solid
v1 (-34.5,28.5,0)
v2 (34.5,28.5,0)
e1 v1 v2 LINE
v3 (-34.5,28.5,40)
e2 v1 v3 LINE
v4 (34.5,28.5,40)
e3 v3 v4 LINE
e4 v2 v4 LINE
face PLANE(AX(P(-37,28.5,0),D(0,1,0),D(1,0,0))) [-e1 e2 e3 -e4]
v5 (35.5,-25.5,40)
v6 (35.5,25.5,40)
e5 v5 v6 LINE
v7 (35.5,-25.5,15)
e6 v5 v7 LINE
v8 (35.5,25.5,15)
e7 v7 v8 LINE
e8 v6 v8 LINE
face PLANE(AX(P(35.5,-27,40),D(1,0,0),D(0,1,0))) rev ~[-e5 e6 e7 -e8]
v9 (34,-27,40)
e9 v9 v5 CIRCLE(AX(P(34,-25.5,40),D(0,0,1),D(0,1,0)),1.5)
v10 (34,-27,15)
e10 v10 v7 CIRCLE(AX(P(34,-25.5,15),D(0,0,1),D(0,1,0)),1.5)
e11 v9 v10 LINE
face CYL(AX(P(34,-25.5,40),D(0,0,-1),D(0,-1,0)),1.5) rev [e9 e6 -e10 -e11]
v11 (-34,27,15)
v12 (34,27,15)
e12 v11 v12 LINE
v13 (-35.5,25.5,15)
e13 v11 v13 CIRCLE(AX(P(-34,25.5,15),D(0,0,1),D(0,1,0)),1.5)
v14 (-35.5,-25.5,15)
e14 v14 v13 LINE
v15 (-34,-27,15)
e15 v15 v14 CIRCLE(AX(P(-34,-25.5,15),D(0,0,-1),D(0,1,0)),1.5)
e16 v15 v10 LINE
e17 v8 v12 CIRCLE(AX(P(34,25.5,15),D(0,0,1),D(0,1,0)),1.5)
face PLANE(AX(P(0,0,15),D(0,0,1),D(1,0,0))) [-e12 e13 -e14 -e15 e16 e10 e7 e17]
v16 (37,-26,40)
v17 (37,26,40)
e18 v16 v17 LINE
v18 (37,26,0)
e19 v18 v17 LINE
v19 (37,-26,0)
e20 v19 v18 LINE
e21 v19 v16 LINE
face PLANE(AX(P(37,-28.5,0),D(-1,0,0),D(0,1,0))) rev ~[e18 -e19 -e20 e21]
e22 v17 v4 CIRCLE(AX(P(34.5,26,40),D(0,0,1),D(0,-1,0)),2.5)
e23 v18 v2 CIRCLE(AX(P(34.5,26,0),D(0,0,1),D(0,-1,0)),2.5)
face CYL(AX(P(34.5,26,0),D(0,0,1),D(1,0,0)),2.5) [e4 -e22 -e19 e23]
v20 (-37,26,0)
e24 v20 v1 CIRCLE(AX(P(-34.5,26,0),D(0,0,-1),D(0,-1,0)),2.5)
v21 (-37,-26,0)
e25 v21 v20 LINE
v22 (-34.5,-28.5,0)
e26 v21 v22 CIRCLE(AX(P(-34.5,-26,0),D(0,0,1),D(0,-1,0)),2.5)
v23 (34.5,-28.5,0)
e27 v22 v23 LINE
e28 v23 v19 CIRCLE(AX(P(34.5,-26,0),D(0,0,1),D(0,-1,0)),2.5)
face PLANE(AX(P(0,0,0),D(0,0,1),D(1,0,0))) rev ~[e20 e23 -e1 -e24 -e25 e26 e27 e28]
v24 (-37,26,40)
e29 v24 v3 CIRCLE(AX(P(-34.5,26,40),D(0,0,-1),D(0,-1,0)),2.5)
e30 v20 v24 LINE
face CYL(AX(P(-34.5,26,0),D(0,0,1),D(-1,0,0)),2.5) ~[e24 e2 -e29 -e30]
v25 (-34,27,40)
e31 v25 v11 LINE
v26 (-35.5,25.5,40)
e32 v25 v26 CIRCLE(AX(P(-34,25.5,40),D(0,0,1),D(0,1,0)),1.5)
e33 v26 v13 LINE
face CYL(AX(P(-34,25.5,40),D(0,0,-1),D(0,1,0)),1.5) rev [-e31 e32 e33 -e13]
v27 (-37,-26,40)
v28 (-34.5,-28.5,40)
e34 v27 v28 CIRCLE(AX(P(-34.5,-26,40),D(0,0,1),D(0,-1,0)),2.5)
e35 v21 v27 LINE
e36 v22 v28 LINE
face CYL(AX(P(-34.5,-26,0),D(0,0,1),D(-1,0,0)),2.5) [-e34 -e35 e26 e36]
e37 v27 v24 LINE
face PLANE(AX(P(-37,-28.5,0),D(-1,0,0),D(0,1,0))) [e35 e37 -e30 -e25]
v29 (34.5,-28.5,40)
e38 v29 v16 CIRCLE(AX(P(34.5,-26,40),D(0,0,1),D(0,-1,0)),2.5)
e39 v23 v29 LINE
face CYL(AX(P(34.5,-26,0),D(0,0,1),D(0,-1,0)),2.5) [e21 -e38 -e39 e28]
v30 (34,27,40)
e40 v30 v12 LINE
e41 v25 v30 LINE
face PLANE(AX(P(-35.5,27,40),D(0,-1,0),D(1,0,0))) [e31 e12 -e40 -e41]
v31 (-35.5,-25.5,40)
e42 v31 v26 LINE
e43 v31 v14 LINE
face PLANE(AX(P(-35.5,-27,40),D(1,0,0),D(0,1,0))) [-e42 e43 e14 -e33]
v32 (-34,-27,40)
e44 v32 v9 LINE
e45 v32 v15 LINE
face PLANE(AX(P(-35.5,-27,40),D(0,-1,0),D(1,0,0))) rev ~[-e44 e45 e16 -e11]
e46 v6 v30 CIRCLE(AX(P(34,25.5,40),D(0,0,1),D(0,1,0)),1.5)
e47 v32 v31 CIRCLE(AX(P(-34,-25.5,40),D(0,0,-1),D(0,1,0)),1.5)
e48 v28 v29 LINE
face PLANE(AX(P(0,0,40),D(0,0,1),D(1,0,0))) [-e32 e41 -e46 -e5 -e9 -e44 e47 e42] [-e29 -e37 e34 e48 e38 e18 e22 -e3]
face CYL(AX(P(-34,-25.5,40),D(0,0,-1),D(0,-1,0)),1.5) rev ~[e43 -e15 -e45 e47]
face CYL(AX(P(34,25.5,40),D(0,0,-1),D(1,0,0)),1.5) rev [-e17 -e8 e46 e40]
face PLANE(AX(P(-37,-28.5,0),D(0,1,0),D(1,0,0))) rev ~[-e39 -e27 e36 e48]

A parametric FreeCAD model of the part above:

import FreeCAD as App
import Part
import Sketcher


def edges_at(feature, points):
    """Names of the edges that pass closest to the given points."""
    edges = feature.Shape.Edges
    near = lambda p: min(range(len(edges)), key=lambda i: edges[i].distToShape(Part.Vertex(*p))[0])
    return sorted({f"Edge{near(p) + 1}" for p in points})


def add_polygon(sketch, points):
    """Adds a closed chain of lines whose ends are joined by coincident constraints."""
    first, n = sketch.GeometryCount, len(points)
    for a, b in zip(points, points[1:] + points[:1]):
        sketch.addGeometry(Part.LineSegment(App.Vector(*a, 0), App.Vector(*b, 0)), False)
    for i in range(n):
        sketch.addConstraint(Sketcher.Constraint("Coincident", first + i, 2, first + (i + 1) % n, 1))

doc = App.newDocument("Part")
body = doc.addObject("PartDesign::Body", "Body")

sketch1 = body.newObject("Sketcher::SketchObject", "Sketch")
sketch1.AttachmentSupport = (doc.getObject("XY_Plane"), [""])
sketch1.MapMode = "FlatFace"
add_polygon(sketch1, [(-37, 28), (-37, -28), (37, -28), (37, 28)])
sketch1.addConstraint([
    Sketcher.Constraint("Vertical", 0),
    Sketcher.Constraint("Horizontal", 1),
    Sketcher.Constraint("Vertical", 2),
    Sketcher.Constraint("Horizontal", 3),
    Sketcher.Constraint("Symmetric", 0, 2, 2, 2, -1, 1),
    Sketcher.Constraint("DistanceX", 1, 1, 1, 2, 74.0),
    Sketcher.Constraint("DistanceY", 0, 2, 0, 1, 57.0),
])
pad1 = body.newObject("PartDesign::Pad", "Pad")
pad1.Profile = sketch1
pad1.Length = 40
doc.recompute()

fillet = body.newObject("PartDesign::Fillet", "Fillet")
fillet.Base = (pad1, edges_at(pad1, [
    (37, 28.5, 20),
    (37, -28.5, 20),
    (-37, -28.5, 20),
    (-37, 28.5, 20),
]))
fillet.Radius = 2.5

sketch2 = body.newObject("Sketcher::SketchObject", "Sketch001")
sketch2.AttachmentSupport = (doc.getObject("XY_Plane"), [""])
sketch2.MapMode = "FlatFace"
sketch2.AttachmentOffset = App.Placement(App.Vector(0, 0, 40), App.Rotation())
add_polygon(sketch2, [(-36, 27), (-36, -27), (36, -27), (36, 27)])
sketch2.addConstraint([
    Sketcher.Constraint("Vertical", 0),
    Sketcher.Constraint("Horizontal", 1),
    Sketcher.Constraint("Vertical", 2),
    Sketcher.Constraint("Horizontal", 3),
    Sketcher.Constraint("Symmetric", 0, 2, 2, 2, -1, 1),
    Sketcher.Constraint("DistanceX", 1, 1, 1, 2, 71.0),
    Sketcher.Constraint("DistanceY", 0, 2, 0, 1, 54.0),
])
pocket1 = body.newObject("PartDesign::Pocket", "Pocket")
pocket1.Profile = sketch2
pocket1.Length = 25
doc.recompute()

fillet2 = body.newObject("PartDesign::Fillet", "Fillet001")
fillet2.Base = (pocket1, edges_at(pocket1, [
    (35.5, -27, 27.5),
    (-35.5, -27, 27.5),
    (-35.5, 27, 27.5),
    (35.5, 27, 27.5),
]))
fillet2.Radius = 1.5

doc.recompute()
